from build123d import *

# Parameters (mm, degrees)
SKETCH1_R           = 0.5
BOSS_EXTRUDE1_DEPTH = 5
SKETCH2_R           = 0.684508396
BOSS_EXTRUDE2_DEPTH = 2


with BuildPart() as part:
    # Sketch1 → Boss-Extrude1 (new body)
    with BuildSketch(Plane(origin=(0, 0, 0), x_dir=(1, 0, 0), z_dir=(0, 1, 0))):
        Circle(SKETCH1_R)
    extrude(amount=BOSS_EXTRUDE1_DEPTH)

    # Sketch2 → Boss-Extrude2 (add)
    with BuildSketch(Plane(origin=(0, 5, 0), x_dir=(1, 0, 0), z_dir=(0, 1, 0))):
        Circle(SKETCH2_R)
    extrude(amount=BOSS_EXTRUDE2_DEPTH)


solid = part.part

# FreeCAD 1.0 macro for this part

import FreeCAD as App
import Part
import Sketcher
from FreeCAD import Vector

doc = App.newDocument("Part")
params = doc.addObject("Spreadsheet::Sheet", "Params")
for row, (alias, value) in enumerate([
    ("sketch1_diameter", "1 mm"),
    ("pad1_length", "5 mm"),
    ("pad2_length", "2 mm"),
], start=1):
    params.set(f"A{row}", alias)
    params.set(f"B{row}", "=" + value)
    params.setAlias(f"B{row}", alias)

body = doc.addObject("PartDesign::Body", "Body")

# Sketch on XZ plane
sketch1 = body.newObject("Sketcher::SketchObject", "Sketch")
sketch1.AttachmentSupport = (doc.getObject("XZ_Plane"), [""])
sketch1.MapMode = "FlatFace"
sketch1.addGeometry(Part.Circle(Vector(0, 0, 0), Vector(0, 0, 1), 0.5), False)
sketch1.addConstraint(Sketcher.Constraint("Coincident", 0, 3, -1, 1))
sketch1.addConstraint(Sketcher.Constraint("Diameter", 0, 1.0))
sketch1.setExpression("Constraints[1]", "Params.sketch1_diameter")
pad1 = body.newObject("PartDesign::Pad", "Pad")
pad1.Profile = sketch1
pad1.setExpression("Length", "Params.pad1_length")
pad1.Reversed = True

# Sketch on XZ plane
sketch2 = body.newObject("Sketcher::SketchObject", "Sketch001")
sketch2.AttachmentSupport = (doc.getObject("XZ_Plane"), [""])
sketch2.MapMode = "FlatFace"
sketch2.AttachmentOffset = App.Placement(Vector(0, 0, -5), App.Rotation())
sketch2.addGeometry(Part.Circle(Vector(0, 0, 0), Vector(0, 0, 1), 0.7), False)
sketch2.addConstraint(Sketcher.Constraint("Coincident", 0, 3, -1, 1))
sketch2.addConstraint(Sketcher.Constraint("Diameter", 0, 1.369017))
pad2 = body.newObject("PartDesign::Pad", "Pad001")
pad2.Profile = sketch2
pad2.setExpression("Length", "Params.pad2_length")
pad2.Reversed = True

doc.recompute()
